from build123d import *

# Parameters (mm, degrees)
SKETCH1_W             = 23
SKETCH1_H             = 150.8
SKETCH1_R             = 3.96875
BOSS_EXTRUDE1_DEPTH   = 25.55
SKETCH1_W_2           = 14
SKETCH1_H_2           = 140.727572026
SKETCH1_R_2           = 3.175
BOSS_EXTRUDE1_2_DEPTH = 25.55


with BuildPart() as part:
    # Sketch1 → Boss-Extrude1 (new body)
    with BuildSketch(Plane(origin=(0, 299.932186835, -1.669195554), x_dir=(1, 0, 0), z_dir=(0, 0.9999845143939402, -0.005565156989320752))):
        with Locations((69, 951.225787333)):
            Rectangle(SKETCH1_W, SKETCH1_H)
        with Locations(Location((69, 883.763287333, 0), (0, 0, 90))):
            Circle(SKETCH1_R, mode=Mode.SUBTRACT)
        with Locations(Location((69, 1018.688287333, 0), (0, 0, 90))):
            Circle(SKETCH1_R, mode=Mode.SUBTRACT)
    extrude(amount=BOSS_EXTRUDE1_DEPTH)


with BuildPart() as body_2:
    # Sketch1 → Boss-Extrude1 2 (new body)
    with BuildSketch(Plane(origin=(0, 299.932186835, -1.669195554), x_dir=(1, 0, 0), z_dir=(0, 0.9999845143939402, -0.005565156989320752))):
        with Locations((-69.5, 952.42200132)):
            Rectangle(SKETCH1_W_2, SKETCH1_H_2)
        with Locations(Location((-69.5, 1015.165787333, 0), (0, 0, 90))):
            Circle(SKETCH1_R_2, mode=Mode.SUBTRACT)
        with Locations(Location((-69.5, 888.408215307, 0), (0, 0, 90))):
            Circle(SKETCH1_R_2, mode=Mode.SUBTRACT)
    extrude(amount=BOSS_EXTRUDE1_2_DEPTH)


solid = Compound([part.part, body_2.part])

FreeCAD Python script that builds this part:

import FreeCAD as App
import Part
import Sketcher
Q = App.Units.Quantity


def add_polygon(sketch, points):
    """Adds a closed chain of lines whose ends are joined by coincident constraints."""
    first, n = sketch.GeometryCount, len(points)
    for a, b in zip(points, points[1:] + points[:1]):
        sketch.addGeometry(Part.LineSegment(App.Vector(*a, 0), App.Vector(*b, 0)), False)
    for i in range(n):
        sketch.addConstraint(Sketcher.Constraint("Coincident", first + i, 2, first + (i + 1) % n, 1))

doc = App.newDocument("Part")
body = doc.addObject("PartDesign::Body", "Body")

sketch1 = body.newObject("Sketcher::SketchObject", "Sketch")
sketch1.Placement = App.Placement(App.Vector(0, 299.932187, -1.669196), App.Rotation(App.Vector(1, 0, 0), App.Vector(0, -0.005565157, -0.999984514), App.Vector(0, 0.999984514, -0.005565157), "ZXY"))
add_polygon(sketch1, [(57.5, 1026.6), (57.5, 875.8), (80.5, 875.8), (80.5, 1026.6)])
sketch1.addGeometry(Part.Circle(App.Vector(69, 883.8, 0), App.Vector(0, 0, 1), 4), False)
sketch1.addGeometry(Part.Circle(App.Vector(69, 1018.7, 0), App.Vector(0, 0, 1), 4), False)
sketch1.addConstraint([
    Sketcher.Constraint("Vertical", 0),
    Sketcher.Constraint("Horizontal", 1),
    Sketcher.Constraint("Vertical", 2),
    Sketcher.Constraint("Horizontal", 3),
    Sketcher.Constraint("Equal", 4, 5),
    Sketcher.Constraint("Vertical", 4, 3, 5, 3),
    Sketcher.Constraint("DistanceX", 1, 1, 1, 2, Q("23 mm")),
    Sketcher.Constraint("DistanceY", 0, 2, 0, 1, Q("150.8 mm")),
    Sketcher.Constraint("DistanceX", -1, 1, 4, 3, Q("69 mm")),
    Sketcher.Constraint("Diameter", 4, Q("7.9375 mm")),
    Sketcher.Constraint("DistanceX", -1, 1, 0, 2, Q("57.5 mm")),
    Sketcher.Constraint("DistanceY", 4, 3, 5, 3, Q("134.925 mm")),
    Sketcher.Constraint("DistanceY", 0, 2, 4, 3, Q("7.9375 mm")),
    Sketcher.Constraint("DistanceY", -1, 1, 4, 3, Q("883.763287 mm")),
])
pad1 = body.newObject("PartDesign::Pad", "Pad")
pad1.Profile = sketch1
pad1.Length = 25.55
body2 = doc.addObject("PartDesign::Body", "Body001")

sketch2 = body2.newObject("Sketcher::SketchObject", "Sketch001")
sketch2.Placement = App.Placement(App.Vector(0, 299.932187, -1.669196), App.Rotation(App.Vector(1, 0, 0), App.Vector(0, -0.005565157, -0.999984514), App.Vector(0, 0.999984514, -0.005565157), "ZXY"))
add_polygon(sketch2, [(-76.5, 1022.8), (-76.5, 882.1), (-62.5, 882.1), (-62.5, 1022.8)])
sketch2.addGeometry(Part.Circle(App.Vector(-69.5, 888.4, 0), App.Vector(0, 0, 1), 3.2), False)
sketch2.addGeometry(Part.Circle(App.Vector(-69.5, 1015.2, 0), App.Vector(0, 0, 1), 3.2), False)
sketch2.addConstraint([
    Sketcher.Constraint("Vertical", 0),
    Sketcher.Constraint("Horizontal", 1),
    Sketcher.Constraint("Vertical", 2),
    Sketcher.Constraint("Horizontal", 3),
    Sketcher.Constraint("Equal", 4, 5),
    Sketcher.Constraint("Vertical", 4, 3, 5, 3),
    Sketcher.Constraint("Diameter", 4, Q("6.35 mm")),
    Sketcher.Constraint("DistanceX", 1, 1, 1, 2, Q("14 mm")),
    Sketcher.Constraint("DistanceX", 0, 2, 4, 3, Q("7 mm")),
    Sketcher.Constraint("DistanceX", 4, 3, -1, 1, Q("69.5 mm")),
    Sketcher.Constraint("DistanceY", 0, 2, 4, 3, Q("6.35 mm")),
    Sketcher.Constraint("DistanceY", 5, 3, 2, 2, Q("7.62 mm")),
    Sketcher.Constraint("DistanceY", 0, 2, 0, 1, Q("140.727572 mm")),
    Sketcher.Constraint("DistanceY", -1, 1, 4, 3, Q("888.408215 mm")),
])
pad2 = body2.newObject("PartDesign::Pad", "Pad001")
pad2.Profile = sketch2
pad2.Length = 25.55

doc.recompute()
